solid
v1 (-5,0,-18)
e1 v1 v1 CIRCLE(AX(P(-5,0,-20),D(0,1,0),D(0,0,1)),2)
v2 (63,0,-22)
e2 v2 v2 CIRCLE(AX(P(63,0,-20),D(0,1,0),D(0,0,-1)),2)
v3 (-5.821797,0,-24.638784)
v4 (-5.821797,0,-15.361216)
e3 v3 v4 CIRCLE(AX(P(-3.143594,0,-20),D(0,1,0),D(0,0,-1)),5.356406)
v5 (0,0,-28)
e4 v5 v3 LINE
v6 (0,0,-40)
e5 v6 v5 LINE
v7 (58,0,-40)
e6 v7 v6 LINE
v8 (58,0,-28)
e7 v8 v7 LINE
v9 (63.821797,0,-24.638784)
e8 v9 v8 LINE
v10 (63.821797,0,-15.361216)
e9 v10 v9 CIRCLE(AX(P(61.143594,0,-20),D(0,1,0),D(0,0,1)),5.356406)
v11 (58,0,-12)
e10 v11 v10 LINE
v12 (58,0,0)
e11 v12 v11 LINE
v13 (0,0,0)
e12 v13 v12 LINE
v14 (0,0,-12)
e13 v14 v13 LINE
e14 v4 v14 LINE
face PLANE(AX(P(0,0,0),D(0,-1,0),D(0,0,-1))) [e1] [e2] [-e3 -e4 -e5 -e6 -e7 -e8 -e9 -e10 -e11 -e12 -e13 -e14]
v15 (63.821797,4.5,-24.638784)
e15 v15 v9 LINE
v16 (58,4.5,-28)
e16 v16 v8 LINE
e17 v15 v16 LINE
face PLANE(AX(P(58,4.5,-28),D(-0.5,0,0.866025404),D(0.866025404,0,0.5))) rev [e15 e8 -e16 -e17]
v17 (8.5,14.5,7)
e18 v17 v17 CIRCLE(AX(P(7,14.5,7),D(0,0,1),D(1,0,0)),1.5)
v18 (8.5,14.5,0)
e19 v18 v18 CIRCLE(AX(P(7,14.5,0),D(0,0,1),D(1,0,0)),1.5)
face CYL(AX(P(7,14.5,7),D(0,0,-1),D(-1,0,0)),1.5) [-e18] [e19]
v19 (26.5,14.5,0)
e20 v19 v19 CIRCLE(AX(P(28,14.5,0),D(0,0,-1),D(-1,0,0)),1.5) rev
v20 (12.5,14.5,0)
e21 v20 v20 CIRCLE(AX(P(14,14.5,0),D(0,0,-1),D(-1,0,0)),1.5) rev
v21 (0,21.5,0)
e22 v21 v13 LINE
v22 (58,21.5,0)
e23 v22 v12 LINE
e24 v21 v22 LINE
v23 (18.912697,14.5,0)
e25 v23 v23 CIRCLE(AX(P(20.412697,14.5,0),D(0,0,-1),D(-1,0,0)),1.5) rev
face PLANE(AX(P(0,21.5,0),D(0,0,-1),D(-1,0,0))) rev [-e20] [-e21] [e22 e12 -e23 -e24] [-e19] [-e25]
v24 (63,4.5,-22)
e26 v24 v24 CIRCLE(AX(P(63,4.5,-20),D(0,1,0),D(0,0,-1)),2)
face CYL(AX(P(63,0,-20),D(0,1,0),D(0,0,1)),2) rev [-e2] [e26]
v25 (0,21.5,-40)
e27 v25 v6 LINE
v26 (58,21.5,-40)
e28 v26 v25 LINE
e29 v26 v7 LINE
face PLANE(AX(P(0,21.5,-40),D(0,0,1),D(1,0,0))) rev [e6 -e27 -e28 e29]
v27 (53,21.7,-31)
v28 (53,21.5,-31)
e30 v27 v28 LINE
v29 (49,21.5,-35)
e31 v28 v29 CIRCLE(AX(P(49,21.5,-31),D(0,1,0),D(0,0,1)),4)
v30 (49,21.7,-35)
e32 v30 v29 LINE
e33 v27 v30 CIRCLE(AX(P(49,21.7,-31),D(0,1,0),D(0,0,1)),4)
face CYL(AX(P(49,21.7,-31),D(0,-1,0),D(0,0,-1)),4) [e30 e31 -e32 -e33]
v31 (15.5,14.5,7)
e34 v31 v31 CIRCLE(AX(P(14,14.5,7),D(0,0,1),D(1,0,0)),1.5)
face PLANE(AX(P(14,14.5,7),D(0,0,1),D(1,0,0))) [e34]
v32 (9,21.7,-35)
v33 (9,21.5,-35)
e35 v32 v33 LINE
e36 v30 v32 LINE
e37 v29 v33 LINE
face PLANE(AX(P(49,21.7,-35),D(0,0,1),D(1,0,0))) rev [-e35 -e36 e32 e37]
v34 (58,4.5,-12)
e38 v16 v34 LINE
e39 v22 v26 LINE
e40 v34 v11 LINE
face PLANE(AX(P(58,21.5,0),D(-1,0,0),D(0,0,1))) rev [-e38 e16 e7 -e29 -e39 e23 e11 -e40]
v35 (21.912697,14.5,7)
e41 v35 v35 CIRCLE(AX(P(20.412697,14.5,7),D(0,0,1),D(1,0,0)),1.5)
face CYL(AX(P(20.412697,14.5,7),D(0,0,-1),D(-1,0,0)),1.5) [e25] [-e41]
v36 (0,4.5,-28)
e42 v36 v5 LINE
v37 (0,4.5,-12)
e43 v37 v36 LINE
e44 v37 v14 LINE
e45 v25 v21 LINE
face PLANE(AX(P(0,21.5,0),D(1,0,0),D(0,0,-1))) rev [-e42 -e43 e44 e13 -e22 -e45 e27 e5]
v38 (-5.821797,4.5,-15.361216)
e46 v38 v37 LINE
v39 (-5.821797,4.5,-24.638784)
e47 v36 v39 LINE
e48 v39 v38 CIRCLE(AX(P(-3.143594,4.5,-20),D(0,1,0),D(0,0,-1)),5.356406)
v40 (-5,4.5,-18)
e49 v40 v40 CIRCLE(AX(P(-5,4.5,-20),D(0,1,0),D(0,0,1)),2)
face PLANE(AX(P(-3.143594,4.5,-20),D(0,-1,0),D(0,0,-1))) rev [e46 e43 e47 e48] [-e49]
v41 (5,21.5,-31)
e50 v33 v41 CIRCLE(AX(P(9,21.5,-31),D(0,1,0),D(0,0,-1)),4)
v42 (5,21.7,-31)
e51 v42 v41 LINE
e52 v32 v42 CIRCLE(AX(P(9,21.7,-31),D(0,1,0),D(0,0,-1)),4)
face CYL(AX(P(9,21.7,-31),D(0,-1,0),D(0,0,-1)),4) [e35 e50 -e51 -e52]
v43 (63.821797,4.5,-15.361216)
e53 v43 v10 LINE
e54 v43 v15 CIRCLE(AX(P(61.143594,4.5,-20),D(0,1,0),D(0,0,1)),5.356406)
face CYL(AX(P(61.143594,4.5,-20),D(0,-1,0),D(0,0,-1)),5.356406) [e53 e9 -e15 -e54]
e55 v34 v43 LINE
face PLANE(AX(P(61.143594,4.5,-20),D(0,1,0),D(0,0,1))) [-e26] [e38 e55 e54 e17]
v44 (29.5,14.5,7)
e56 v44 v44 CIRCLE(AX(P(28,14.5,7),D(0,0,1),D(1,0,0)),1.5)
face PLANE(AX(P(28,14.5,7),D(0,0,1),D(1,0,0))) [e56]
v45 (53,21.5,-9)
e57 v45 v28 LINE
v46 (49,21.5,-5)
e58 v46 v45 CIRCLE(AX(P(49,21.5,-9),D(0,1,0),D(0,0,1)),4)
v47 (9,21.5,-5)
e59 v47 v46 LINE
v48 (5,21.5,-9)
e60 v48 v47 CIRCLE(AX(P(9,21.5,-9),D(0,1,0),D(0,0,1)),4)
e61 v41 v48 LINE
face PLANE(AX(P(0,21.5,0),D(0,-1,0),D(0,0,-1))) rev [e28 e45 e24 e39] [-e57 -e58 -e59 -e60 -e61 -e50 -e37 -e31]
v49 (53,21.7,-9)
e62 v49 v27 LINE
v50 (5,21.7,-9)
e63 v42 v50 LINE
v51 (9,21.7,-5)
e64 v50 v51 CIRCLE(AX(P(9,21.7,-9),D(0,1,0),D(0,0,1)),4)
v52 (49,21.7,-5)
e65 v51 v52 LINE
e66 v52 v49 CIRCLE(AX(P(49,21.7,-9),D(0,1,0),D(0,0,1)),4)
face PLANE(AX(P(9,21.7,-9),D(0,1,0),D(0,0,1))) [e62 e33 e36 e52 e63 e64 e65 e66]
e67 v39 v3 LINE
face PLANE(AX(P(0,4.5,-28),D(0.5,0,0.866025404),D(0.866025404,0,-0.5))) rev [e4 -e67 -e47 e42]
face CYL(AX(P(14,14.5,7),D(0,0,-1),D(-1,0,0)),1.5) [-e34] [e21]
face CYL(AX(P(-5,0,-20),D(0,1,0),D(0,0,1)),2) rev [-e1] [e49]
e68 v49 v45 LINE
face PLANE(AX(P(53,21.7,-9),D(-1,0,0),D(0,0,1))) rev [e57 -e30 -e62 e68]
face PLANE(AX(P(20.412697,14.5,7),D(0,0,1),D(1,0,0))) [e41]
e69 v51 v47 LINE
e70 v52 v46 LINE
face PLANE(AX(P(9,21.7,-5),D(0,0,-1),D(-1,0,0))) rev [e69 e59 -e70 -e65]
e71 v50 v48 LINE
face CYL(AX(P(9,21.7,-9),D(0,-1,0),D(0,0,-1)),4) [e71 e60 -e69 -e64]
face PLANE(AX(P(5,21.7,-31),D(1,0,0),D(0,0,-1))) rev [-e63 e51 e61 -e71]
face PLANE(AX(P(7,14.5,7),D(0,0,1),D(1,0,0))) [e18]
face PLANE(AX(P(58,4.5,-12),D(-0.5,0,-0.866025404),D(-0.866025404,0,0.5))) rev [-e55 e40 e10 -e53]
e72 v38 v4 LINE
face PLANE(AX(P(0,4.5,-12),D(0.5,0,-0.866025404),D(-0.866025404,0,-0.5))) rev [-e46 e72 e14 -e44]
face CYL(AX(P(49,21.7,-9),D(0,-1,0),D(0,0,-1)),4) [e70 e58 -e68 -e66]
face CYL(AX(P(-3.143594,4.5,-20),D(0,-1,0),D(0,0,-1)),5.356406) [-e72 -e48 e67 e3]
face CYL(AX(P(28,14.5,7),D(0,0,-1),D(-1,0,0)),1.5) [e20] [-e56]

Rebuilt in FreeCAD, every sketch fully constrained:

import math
import FreeCAD as App
import Part
import Sketcher

V = App.Vector
Q = App.Units.Quantity


def add_polygon(sketch, points):
    """Adds a closed chain of lines whose ends are joined by coincident constraints."""
    first, n = sketch.GeometryCount, len(points)
    for a, b in zip(points, points[1:] + points[:1]):
        sketch.addGeometry(Part.LineSegment(App.Vector(*a, 0), App.Vector(*b, 0)), False)
    for i in range(n):
        sketch.addConstraint(Sketcher.Constraint("Coincident", first + i, 2, first + (i + 1) % n, 1))

doc = App.newDocument("Part")
body = doc.addObject("PartDesign::Body", "Body")

# Sketch on XZ plane
sketch1 = body.newObject("Sketcher::SketchObject", "Sketch")
sketch1.AttachmentSupport = (doc.getObject("XZ_Plane"), [""])
sketch1.MapMode = "FlatFace"
add_polygon(sketch1, [(0, -40), (0, 0), (58, 0), (58, -40)])  # lines 0-3
sketch1.addConstraint([
    Sketcher.Constraint("Vertical", 0),
    Sketcher.Constraint("Horizontal", 1),
    Sketcher.Constraint("Vertical", 2),
    Sketcher.Constraint("Horizontal", 3),
    Sketcher.Constraint("Coincident", 0, 2, -1, 1),
    Sketcher.Constraint("DistanceX", 1, 1, 1, 2, Q("58 mm")),
    Sketcher.Constraint("DistanceY", 0, 1, 0, 2, Q("40 mm")),
])
pad1 = body.newObject("PartDesign::Pad", "Pad")
pad1.Profile = sketch1
pad1.Length = 21.5
pad1.Reversed = True

# Sketch on XZ plane
sketch2 = body.newObject("Sketcher::SketchObject", "Sketch001")
sketch2.AttachmentSupport = (doc.getObject("XZ_Plane"), [""])
sketch2.MapMode = "FlatFace"
sketch2.addGeometry([
    Part.LineSegment(V(0, -12, 0), V(0, -28, 0)),  # 0
    Part.LineSegment(V(0, -28, 0), V(-5.821797, -24.638784, 0)),  # 1
    Part.ArcOfCircle(Part.Circle(V(-3.143594, -20, 0), V(0, 0, 1), 5.356406), math.radians(120), math.radians(240)),  # 2
    Part.LineSegment(V(-5.821797, -15.361216, 0), V(0, -12, 0)),  # 3
    Part.LineSegment(V(63.821797, -24.638784, 0), V(58, -28, 0)),  # 4
    Part.LineSegment(V(58, -28, 0), V(58, -12, 0)),  # 5
    Part.LineSegment(V(58, -12, 0), V(63.821797, -15.361216, 0)),  # 6
    Part.ArcOfCircle(Part.Circle(V(61.143594, -20, 0), V(0, 0, 1), 5.356406), math.radians(-60), math.radians(60)),  # 7
], False)
sketch2.addConstraint([
    Sketcher.Constraint("Coincident", 0, 2, 1, 1),
    Sketcher.Constraint("Tangent", 1, 2, 2, 2),
    Sketcher.Constraint("Tangent", 2, 1, 3, 1),
    Sketcher.Constraint("Coincident", 3, 2, 0, 1),
    Sketcher.Constraint("Coincident", 4, 2, 5, 1),
    Sketcher.Constraint("Coincident", 5, 2, 6, 1),
    Sketcher.Constraint("Tangent", 6, 2, 7, 2),
    Sketcher.Constraint("Tangent", 7, 1, 4, 1),
    Sketcher.Constraint("Vertical", 0),
    Sketcher.Constraint("Vertical", 5),
    Sketcher.Constraint("Equal", 2, 7),
    Sketcher.Constraint("PointOnObject", 0, 2, -2),
    Sketcher.Constraint("Parallel", 3, 4),
    Sketcher.Constraint("Parallel", 1, 6),
    Sketcher.Constraint("Horizontal", 2, 3, 7, 3),
    Sketcher.Constraint("Horizontal", 0, 2, 4, 2),
    Sketcher.Constraint("Horizontal", 3, 2, 5, 2),
    Sketcher.Constraint("DistanceY", 0, 2, 0, 1, Q("16 mm")),
    Sketcher.Constraint("Angle", 1, Q("150 deg")),
    Sketcher.Constraint("DistanceY", 2, 3, -1, 1, Q("20 mm")),
    Sketcher.Constraint("DistanceX", -1, 1, 4, 2, Q("58 mm")),
    Sketcher.Constraint("Radius", 2, Q("5.356406 mm")),
])
pad2 = body.newObject("PartDesign::Pad", "Pad001")
pad2.Profile = sketch2
pad2.Length = 4.5
pad2.Reversed = True

# Sketch on XZ plane
sketch3 = body.newObject("Sketcher::SketchObject", "Sketch002")
sketch3.AttachmentSupport = (doc.getObject("XZ_Plane"), [""])
sketch3.MapMode = "FlatFace"
sketch3.AttachmentOffset = App.Placement(V(0, 0, -4.5), App.Rotation())
sketch3.addGeometry([
    Part.Circle(V(-5, -20, 0), V(0, 0, 1), 2),
    Part.Circle(V(63, -20, 0), V(0, 0, 1), 2),
], False)
sketch3.addConstraint([
    Sketcher.Constraint("Equal", 0, 1),
    Sketcher.Constraint("Horizontal", 0, 3, 1, 3),
    Sketcher.Constraint("Diameter", 0, Q("4 mm")),
    Sketcher.Constraint("DistanceX", 0, 3, -1, 1, Q("5 mm")),
    Sketcher.Constraint("DistanceY", 0, 3, -1, 1, Q("20 mm")),
    Sketcher.Constraint("DistanceX", -1, 1, 1, 3, Q("63 mm")),
])
pocket1 = body.newObject("PartDesign::Pocket", "Pocket")
pocket1.Profile = sketch3
pocket1.Type = "ThroughAll"
pocket1.Reversed = True

# Sketch on XZ plane
sketch4 = body.newObject("Sketcher::SketchObject", "Sketch003")
sketch4.AttachmentSupport = (doc.getObject("XZ_Plane"), [""])
sketch4.MapMode = "FlatFace"
sketch4.AttachmentOffset = App.Placement(V(0, 0, -21.5), App.Rotation())
sketch4.addGeometry([
    Part.LineSegment(V(5, -31, 0), V(5, -9, 0)),  # 0
    Part.ArcOfCircle(Part.Circle(V(9, -9, 0), V(0, 0, 1), 4), math.radians(90), math.radians(180)),  # 1
    Part.LineSegment(V(9, -5, 0), V(49, -5, 0)),  # 2
    Part.ArcOfCircle(Part.Circle(V(49, -9, 0), V(0, 0, 1), 4), math.radians(0), math.radians(90)),  # 3
    Part.LineSegment(V(53, -9, 0), V(53, -31, 0)),  # 4
    Part.ArcOfCircle(Part.Circle(V(49, -31, 0), V(0, 0, 1), 4), math.radians(-90), math.radians(0)),  # 5
    Part.LineSegment(V(49, -35, 0), V(9, -35, 0)),  # 6
    Part.ArcOfCircle(Part.Circle(V(9, -31, 0), V(0, 0, 1), 4), math.radians(180), math.radians(270)),  # 7
], False)
sketch4.addConstraint([
    Sketcher.Constraint("Tangent", 0, 2, 1, 2),
    Sketcher.Constraint("Tangent", 1, 1, 2, 1),
    Sketcher.Constraint("Tangent", 2, 2, 3, 2),
    Sketcher.Constraint("Tangent", 3, 1, 4, 1),
    Sketcher.Constraint("Tangent", 4, 2, 5, 2),
    Sketcher.Constraint("Tangent", 5, 1, 6, 1),
    Sketcher.Constraint("Tangent", 6, 2, 7, 2),
    Sketcher.Constraint("Tangent", 7, 1, 0, 1),
    Sketcher.Constraint("Vertical", 0),
    Sketcher.Constraint("Horizontal", 2),
    Sketcher.Constraint("Vertical", 4),
    Sketcher.Constraint("Horizontal", 6),
    Sketcher.Constraint("Equal", 1, 3),
    Sketcher.Constraint("Equal", 3, 5),
    Sketcher.Constraint("Equal", 5, 7),
    Sketcher.Constraint("Radius", 1, Q("4 mm")),
    Sketcher.Constraint("DistanceX", 2, 1, 2, 2, Q("40 mm")),
    Sketcher.Constraint("DistanceY", 0, 1, 0, 2, Q("22 mm")),
    Sketcher.Constraint("DistanceX", -1, 1, 1, 3, Q("9 mm")),
    Sketcher.Constraint("DistanceY", 1, 3, -1, 1, Q("9 mm")),
])
pad3 = body.newObject("PartDesign::Pad", "Pad002")
pad3.Profile = sketch4
pad3.Length = 0.2
pad3.Reversed = True

# Sketch on XY plane
sketch5 = body.newObject("Sketcher::SketchObject", "Sketch004")
sketch5.AttachmentSupport = (doc.getObject("XY_Plane"), [""])
sketch5.MapMode = "FlatFace"
sketch5.addGeometry(Part.Circle(V(7, 14.5, 0), V(0, 0, 1), 1.5), False)
sketch5.addConstraint([
    Sketcher.Constraint("Diameter", 0, Q("3 mm")),
    Sketcher.Constraint("DistanceX", -1, 1, 0, 3, Q("7 mm")),
    Sketcher.Constraint("DistanceY", -1, 1, 0, 3, Q("14.5 mm")),
])
pad4 = body.newObject("PartDesign::Pad", "Pad003")
pad4.Profile = sketch5
pad4.Length = 7

# Sketch on XY plane
sketch6 = body.newObject("Sketcher::SketchObject", "Sketch005")
sketch6.AttachmentSupport = (doc.getObject("XY_Plane"), [""])
sketch6.MapMode = "FlatFace"
sketch6.addGeometry([
    Part.Circle(V(14, 14.5, 0), V(0, 0, 1), 1.5),
    Part.Circle(V(28, 14.5, 0), V(0, 0, 1), 1.5),
], False)
sketch6.addConstraint([
    Sketcher.Constraint("Equal", 0, 1),
    Sketcher.Constraint("Horizontal", 0, 3, 1, 3),
    Sketcher.Constraint("Diameter", 0, Q("3 mm")),
    Sketcher.Constraint("DistanceX", -1, 1, 0, 3, Q("14 mm")),
    Sketcher.Constraint("DistanceX", -1, 1, 1, 3, Q("28 mm")),
    Sketcher.Constraint("DistanceY", -1, 1, 0, 3, Q("14.5 mm")),
])
pad5 = body.newObject("PartDesign::Pad", "Pad004")
pad5.Profile = sketch6
pad5.Length = 7

# Sketch on XY plane
sketch7 = body.newObject("Sketcher::SketchObject", "Sketch006")
sketch7.AttachmentSupport = (doc.getObject("XY_Plane"), [""])
sketch7.MapMode = "FlatFace"
sketch7.addGeometry(Part.Circle(V(20.412697, 14.5, 0), V(0, 0, 1), 1.5), False)
sketch7.addConstraint([
    Sketcher.Constraint("Diameter", 0, Q("3 mm")),
    Sketcher.Constraint("DistanceY", -1, 1, 0, 3, Q("14.5 mm")),
    Sketcher.Constraint("DistanceX", -1, 1, 0, 3, Q("20.412697 mm")),
])
pad6 = body.newObject("PartDesign::Pad", "Pad005")
pad6.Profile = sketch7
pad6.Length = 7

doc.recompute()
